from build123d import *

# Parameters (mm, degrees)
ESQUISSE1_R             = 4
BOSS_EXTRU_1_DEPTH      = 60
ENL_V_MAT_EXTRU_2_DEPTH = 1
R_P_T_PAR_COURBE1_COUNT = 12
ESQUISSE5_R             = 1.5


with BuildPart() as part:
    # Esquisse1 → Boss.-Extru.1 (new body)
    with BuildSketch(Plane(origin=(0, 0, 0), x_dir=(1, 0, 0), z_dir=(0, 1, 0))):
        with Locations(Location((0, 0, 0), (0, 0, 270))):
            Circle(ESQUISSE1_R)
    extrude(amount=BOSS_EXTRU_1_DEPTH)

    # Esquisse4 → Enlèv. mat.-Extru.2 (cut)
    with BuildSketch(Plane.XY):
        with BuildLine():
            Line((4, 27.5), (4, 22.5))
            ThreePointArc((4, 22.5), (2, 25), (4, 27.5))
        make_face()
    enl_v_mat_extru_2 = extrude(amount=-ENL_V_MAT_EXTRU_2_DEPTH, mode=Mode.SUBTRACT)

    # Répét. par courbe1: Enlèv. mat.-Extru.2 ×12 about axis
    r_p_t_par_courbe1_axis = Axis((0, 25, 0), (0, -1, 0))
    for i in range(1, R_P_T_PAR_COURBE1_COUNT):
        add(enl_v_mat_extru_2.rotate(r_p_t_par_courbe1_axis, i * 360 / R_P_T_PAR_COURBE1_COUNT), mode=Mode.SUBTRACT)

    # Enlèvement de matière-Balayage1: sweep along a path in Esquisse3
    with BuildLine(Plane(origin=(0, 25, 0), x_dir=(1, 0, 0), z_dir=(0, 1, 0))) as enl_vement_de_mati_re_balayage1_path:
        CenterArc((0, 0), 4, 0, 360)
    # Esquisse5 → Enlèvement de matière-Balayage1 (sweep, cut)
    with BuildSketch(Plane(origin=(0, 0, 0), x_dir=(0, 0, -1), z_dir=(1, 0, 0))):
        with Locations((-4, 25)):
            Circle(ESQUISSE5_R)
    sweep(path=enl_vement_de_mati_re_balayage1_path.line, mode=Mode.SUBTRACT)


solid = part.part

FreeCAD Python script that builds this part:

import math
import FreeCAD as App
import Part
import Sketcher

V = App.Vector
Q = App.Units.Quantity

doc = App.newDocument("Part")
body = doc.addObject("PartDesign::Body", "Body")

sketch1 = doc.addObject("Sketcher::SketchObject", "Sketch")
body.addObject(sketch1)
sketch1.AttachmentSupport = (doc.XZ_Plane, [""])
sketch1.MapMode = "FlatFace"
sketch1.addGeometry(Part.Circle(V(0, 0, 0), V(0, 0, 1), 4), False)
sketch1.addConstraint([
    Sketcher.Constraint("Coincident", 0, 3, -1, 1),
    Sketcher.Constraint("Diameter", 0, Q("8 mm")),
])
pad1 = doc.addObject("PartDesign::Pad", "Pad")
body.addObject(pad1)
pad1.Profile = sketch1
pad1.Length = 60
pad1.Reversed = True

sketch2 = doc.addObject("Sketcher::SketchObject", "Sketch001")
body.addObject(sketch2)
sketch2.AttachmentSupport = (doc.XY_Plane, [""])
sketch2.MapMode = "FlatFace"
sketch2.addGeometry([
    Part.LineSegment(V(4, 22.5, 0), V(4, 27.5, 0)),
    Part.ArcOfCircle(Part.Circle(V(4.6, 25, 0), V(0, 0, 1), 2.6), math.radians(103), math.radians(257)),
], False)
sketch2.addConstraint([
    Sketcher.Constraint("Coincident", 0, 1, 1, 2),
    Sketcher.Constraint("Coincident", 1, 1, 0, 2),
    Sketcher.Constraint("Vertical", 0),
    Sketcher.Constraint("DistanceY", 0, 1, 0, 2, Q("5 mm")),
    Sketcher.Constraint("DistanceY", -1, 1, 1, 3, Q("25 mm")),
    Sketcher.Constraint("DistanceX", -1, 1, 0, 1, Q("4 mm")),
    Sketcher.Constraint("Radius", 1, Q("2.5625 mm")),
])
pocket1 = doc.addObject("PartDesign::Pocket", "Pocket")
body.addObject(pocket1)
pocket1.Profile = sketch2
pocket1.Length = 1
doc.recompute()

polarpattern = doc.addObject("PartDesign::PolarPattern", "PolarPattern")
body.addObject(polarpattern)
polarpattern.Originals = [pocket1]
polarpattern.Axis = (doc.Y_Axis, [""])
polarpattern.Angle = 360
polarpattern.Occurrences = 12
body.Tip = polarpattern

sketch3 = doc.addObject("Sketcher::SketchObject", "Sketch002")
body.addObject(sketch3)
sketch3.AttachmentSupport = (doc.YZ_Plane, [""])
sketch3.MapMode = "FlatFace"
sketch3.addGeometry(Part.Circle(V(25, 4, 0), V(0, 0, 1), 1.5), False)
sketch3.addConstraint([
    Sketcher.Constraint("Diameter", 0, Q("3 mm")),
    Sketcher.Constraint("DistanceX", -1, 1, 0, 3, Q("25 mm")),
    Sketcher.Constraint("DistanceY", -1, 1, 0, 3, Q("4 mm")),
])

sketch4 = doc.addObject("Sketcher::SketchObject", "Sketch003")
body.addObject(sketch4)
sketch4.AttachmentSupport = (doc.XZ_Plane, [""])
sketch4.MapMode = "FlatFace"
sketch4.AttachmentOffset = App.Placement(V(0, 0, -25), App.Rotation())
sketch4.addGeometry(Part.Circle(V(0, 0, 0), V(0, 0, 1), 4), False)
sketch4.addConstraint([
    Sketcher.Constraint("Coincident", 0, 3, -1, 1),
    Sketcher.Constraint("Diameter", 0, Q("8 mm")),
])
doc.recompute()

subtractivepipe = doc.addObject("PartDesign::SubtractivePipe", "SubtractivePipe")
body.addObject(subtractivepipe)
subtractivepipe.Profile = sketch3
subtractivepipe.Spine = (sketch4, ["Edge1"])

doc.recompute()
